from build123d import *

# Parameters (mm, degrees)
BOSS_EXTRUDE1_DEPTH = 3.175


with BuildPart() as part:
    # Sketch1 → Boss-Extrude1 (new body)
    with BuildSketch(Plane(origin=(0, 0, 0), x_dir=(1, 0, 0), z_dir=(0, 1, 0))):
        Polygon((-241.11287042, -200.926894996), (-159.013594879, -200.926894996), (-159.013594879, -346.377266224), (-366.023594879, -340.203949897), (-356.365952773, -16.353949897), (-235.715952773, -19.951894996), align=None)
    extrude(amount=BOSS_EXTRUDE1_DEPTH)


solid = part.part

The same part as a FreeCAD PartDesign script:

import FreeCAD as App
import Part
import Sketcher
Q = App.Units.Quantity


def add_polygon(sketch, points):
    """Adds a closed chain of lines whose ends are joined by coincident constraints."""
    first, n = sketch.GeometryCount, len(points)
    for a, b in zip(points, points[1:] + points[:1]):
        sketch.addGeometry(Part.LineSegment(App.Vector(*a, 0), App.Vector(*b, 0)), False)
    for i in range(n):
        sketch.addConstraint(Sketcher.Constraint("Coincident", first + i, 2, first + (i + 1) % n, 1))

doc = App.newDocument("Part")
body = doc.addObject("PartDesign::Body", "Body")

# Sketch on XZ plane
sketch1 = doc.addObject("Sketcher::SketchObject", "Sketch")
body.addObject(sketch1)
sketch1.AttachmentSupport = (doc.XZ_Plane, [""])
sketch1.MapMode = "FlatFace"
add_polygon(sketch1, [(-159, 201), (-241, 201), (-236, 20), (-356, 16), (-366, 340), (-159, 346)])  # lines 0-5
sketch1.addConstraint([
    Sketcher.Constraint("Horizontal", 0),
    Sketcher.Constraint("Vertical", 5),
    Sketcher.Constraint("Perpendicular", 1, 2),
    Sketcher.Constraint("Perpendicular", 2, 3),
    Sketcher.Constraint("Perpendicular", 3, 4),
    Sketcher.Constraint("DistanceX", 2, 2, 1, 2, Q("4.75 in")),
    Sketcher.Constraint("DistanceY", 2, 2, 3, 2, Q("12.75 in")),
    Sketcher.Constraint("DistanceX", 3, 2, 4, 2, Q("8.15 in")),
    Sketcher.Constraint("DistanceY", 1, 2, 0, 2, Q("7.125 in")),
    Sketcher.Constraint("DistanceY", 5, 2, 5, 1, Q("145.450371 mm")),
    Sketcher.Constraint("DistanceX", 0, 2, -1, 1, Q("241.11287 mm")),
    Sketcher.Constraint("DistanceY", -1, 1, 2, 2, Q("16.35395 mm")),
])
pad1 = doc.addObject("PartDesign::Pad", "Pad")
body.addObject(pad1)
pad1.Profile = sketch1
pad1.Length = Q("0.125 in")
pad1.Reversed = True

doc.recompute()
